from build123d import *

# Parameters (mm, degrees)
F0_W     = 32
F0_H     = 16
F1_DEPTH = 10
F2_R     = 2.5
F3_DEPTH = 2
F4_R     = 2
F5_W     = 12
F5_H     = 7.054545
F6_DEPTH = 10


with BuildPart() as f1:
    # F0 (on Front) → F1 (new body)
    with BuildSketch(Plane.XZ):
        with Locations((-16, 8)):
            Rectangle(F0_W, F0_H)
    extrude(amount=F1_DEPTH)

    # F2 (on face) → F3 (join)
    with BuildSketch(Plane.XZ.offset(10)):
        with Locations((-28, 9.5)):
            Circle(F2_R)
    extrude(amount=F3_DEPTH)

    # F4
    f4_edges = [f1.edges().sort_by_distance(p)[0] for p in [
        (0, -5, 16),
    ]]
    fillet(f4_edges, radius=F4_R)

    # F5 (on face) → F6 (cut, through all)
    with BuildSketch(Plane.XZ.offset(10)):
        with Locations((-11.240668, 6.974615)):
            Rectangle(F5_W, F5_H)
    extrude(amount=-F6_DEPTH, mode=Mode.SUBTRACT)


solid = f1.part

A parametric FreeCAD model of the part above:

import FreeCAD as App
import Part
import Sketcher

V = App.Vector


def edges_at(feature, points):
    """Names of the edges that pass closest to the given points."""
    edges = feature.Shape.Edges
    near = lambda p: min(range(len(edges)), key=lambda i: edges[i].distToShape(Part.Vertex(*p))[0])
    return sorted({f"Edge{near(p) + 1}" for p in points})


def add_polygon(sketch, points):
    """Adds a closed chain of lines whose ends are joined by coincident constraints."""
    first, n = sketch.GeometryCount, len(points)
    for a, b in zip(points, points[1:] + points[:1]):
        sketch.addGeometry(Part.LineSegment(App.Vector(*a, 0), App.Vector(*b, 0)), False)
    for i in range(n):
        sketch.addConstraint(Sketcher.Constraint("Coincident", first + i, 2, first + (i + 1) % n, 1))

doc = App.newDocument("Part")
body = doc.addObject("PartDesign::Body", "Body")

# Sketch on XZ plane
sketch1 = body.newObject("Sketcher::SketchObject", "Sketch")
sketch1.AttachmentSupport = (doc.getObject("XZ_Plane"), [""])
sketch1.MapMode = "FlatFace"
add_polygon(sketch1, [(-32, 16), (-32, 0), (0, 0), (0, 16)])  # lines 0-3
sketch1.addConstraint([
    Sketcher.Constraint("Vertical", 0),
    Sketcher.Constraint("Horizontal", 1),
    Sketcher.Constraint("Vertical", 2),
    Sketcher.Constraint("Horizontal", 3),
    Sketcher.Constraint("Coincident", 1, 2, -1, 1),
    Sketcher.Constraint("DistanceX", 1, 1, 1, 2, 32.0),
    Sketcher.Constraint("DistanceY", 0, 2, 0, 1, 16.0),
])
pad1 = body.newObject("PartDesign::Pad", "Pad")
pad1.Profile = sketch1
pad1.Length = 10

# Sketch on XZ plane
sketch2 = body.newObject("Sketcher::SketchObject", "Sketch001")
sketch2.AttachmentSupport = (doc.getObject("XZ_Plane"), [""])
sketch2.MapMode = "FlatFace"
sketch2.AttachmentOffset = App.Placement(V(0, 0, 10), App.Rotation())
sketch2.addGeometry(Part.Circle(V(-28, 9.5, 0), V(0, 0, 1), 2.5), False)
sketch2.addConstraint([
    Sketcher.Constraint("Diameter", 0, 5.0),
    Sketcher.Constraint("DistanceX", 0, 3, -1, 1, 28.0),
    Sketcher.Constraint("DistanceY", -1, 1, 0, 3, 9.5),
])
pad2 = body.newObject("PartDesign::Pad", "Pad001")
pad2.Profile = sketch2
pad2.Length = 2
doc.recompute()

fillet = body.newObject("PartDesign::Fillet", "Fillet")
fillet.Base = (pad2, edges_at(pad2, [(0, -5, 16)]))
fillet.Radius = 2

# Sketch on XZ plane
sketch3 = body.newObject("Sketcher::SketchObject", "Sketch002")
sketch3.AttachmentSupport = (doc.getObject("XZ_Plane"), [""])
sketch3.MapMode = "FlatFace"
sketch3.AttachmentOffset = App.Placement(V(0, 0, 10), App.Rotation())
add_polygon(sketch3, [(-17, 11), (-17, 3), (-5, 3), (-5, 11)])  # lines 0-3
sketch3.addConstraint([
    Sketcher.Constraint("Vertical", 0),
    Sketcher.Constraint("Horizontal", 1),
    Sketcher.Constraint("Vertical", 2),
    Sketcher.Constraint("Horizontal", 3),
    Sketcher.Constraint("DistanceX", 1, 1, 1, 2, 12.0),
    Sketcher.Constraint("DistanceY", 0, 2, 0, 1, 7.054545),
    Sketcher.Constraint("DistanceX", 1, 2, -1, 1, 5.240668),
    Sketcher.Constraint("DistanceY", -1, 1, 0, 2, 3.447342),
])
pocket1 = body.newObject("PartDesign::Pocket", "Pocket")
pocket1.Profile = sketch3
pocket1.Type = "ThroughAll"

doc.recompute()
